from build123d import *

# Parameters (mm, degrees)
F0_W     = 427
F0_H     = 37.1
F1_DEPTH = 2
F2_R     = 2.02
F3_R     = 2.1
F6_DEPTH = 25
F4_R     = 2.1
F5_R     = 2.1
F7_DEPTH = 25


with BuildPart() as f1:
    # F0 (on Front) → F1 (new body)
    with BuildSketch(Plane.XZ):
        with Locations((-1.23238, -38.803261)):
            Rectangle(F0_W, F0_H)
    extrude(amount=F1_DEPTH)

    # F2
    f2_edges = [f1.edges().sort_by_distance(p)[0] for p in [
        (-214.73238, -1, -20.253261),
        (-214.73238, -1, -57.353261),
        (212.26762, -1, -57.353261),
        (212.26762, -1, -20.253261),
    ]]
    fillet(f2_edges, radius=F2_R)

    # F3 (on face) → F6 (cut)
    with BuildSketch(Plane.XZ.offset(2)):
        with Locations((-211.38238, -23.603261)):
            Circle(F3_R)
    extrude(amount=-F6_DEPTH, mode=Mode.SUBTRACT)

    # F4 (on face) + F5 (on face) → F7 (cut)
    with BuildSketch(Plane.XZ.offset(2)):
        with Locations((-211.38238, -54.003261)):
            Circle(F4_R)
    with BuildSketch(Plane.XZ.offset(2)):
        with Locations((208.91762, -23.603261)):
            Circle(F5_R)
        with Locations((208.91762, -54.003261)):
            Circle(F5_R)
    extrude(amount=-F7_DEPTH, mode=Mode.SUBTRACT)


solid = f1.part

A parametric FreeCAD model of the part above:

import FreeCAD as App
import Part
import Sketcher
Q = App.Units.Quantity


def edges_at(feature, points):
    """Names of the edges that pass closest to the given points."""
    edges = feature.Shape.Edges
    near = lambda p: min(range(len(edges)), key=lambda i: edges[i].distToShape(Part.Vertex(*p))[0])
    return sorted({f"Edge{near(p) + 1}" for p in points})

doc = App.newDocument("Part")
body = doc.addObject("PartDesign::Body", "Body")

# Sketch on XZ plane
sketch1 = body.newObject("Sketcher::SketchObject", "Sketch")
sketch1.AttachmentSupport = (doc.getObject("XZ_Plane"), [""])
sketch1.MapMode = "FlatFace"
sketch1.addGeometry([
    Part.LineSegment(App.Vector(-215, -20, 0), App.Vector(-215, -57, 0)),
    Part.LineSegment(App.Vector(-215, -57, 0), App.Vector(212, -57, 0)),
    Part.LineSegment(App.Vector(212, -57, 0), App.Vector(212, -20, 0)),
    Part.LineSegment(App.Vector(212, -20, 0), App.Vector(-215, -20, 0)),
], False)
sketch1.addConstraint([
    Sketcher.Constraint("Coincident", 0, 2, 1, 1),
    Sketcher.Constraint("Coincident", 1, 2, 2, 1),
    Sketcher.Constraint("Coincident", 2, 2, 3, 1),
    Sketcher.Constraint("Coincident", 3, 2, 0, 1),
    Sketcher.Constraint("Vertical", 0),
    Sketcher.Constraint("Horizontal", 1),
    Sketcher.Constraint("Vertical", 2),
    Sketcher.Constraint("Horizontal", 3),
    Sketcher.Constraint("DistanceX", 1, 1, 1, 2, Q("427 mm")),
    Sketcher.Constraint("DistanceY", 0, 2, 0, 1, Q("37.1 mm")),
    Sketcher.Constraint("DistanceX", 0, 2, -1, 1, Q("214.73238 mm")),
    Sketcher.Constraint("DistanceY", 0, 2, -1, 1, Q("57.353261 mm")),
])
pad1 = body.newObject("PartDesign::Pad", "Pad")
pad1.Profile = sketch1
pad1.Length = 2
doc.recompute()

fillet = body.newObject("PartDesign::Fillet", "Fillet")
fillet.Base = (pad1, edges_at(pad1, [
    (-214.732, -1, -20.253),
    (-214.732, -1, -57.353),
    (212.268, -1, -57.353),
    (212.268, -1, -20.253),
]))
fillet.Radius = 2.02

# Sketch on XZ plane
sketch2 = body.newObject("Sketcher::SketchObject", "Sketch001")
sketch2.AttachmentSupport = (doc.getObject("XZ_Plane"), [""])
sketch2.MapMode = "FlatFace"
sketch2.AttachmentOffset = App.Placement(App.Vector(0, 0, 2), App.Rotation())
sketch2.addGeometry(Part.Circle(App.Vector(-211.4, -23.6, 0), App.Vector(0, 0, 1), 2.1), False)
sketch2.addConstraint([
    Sketcher.Constraint("Diameter", 0, Q("4.2 mm")),
    Sketcher.Constraint("DistanceX", 0, 3, -1, 1, Q("211.38238 mm")),
    Sketcher.Constraint("DistanceY", 0, 3, -1, 1, Q("23.603261 mm")),
])
pocket1 = body.newObject("PartDesign::Pocket", "Pocket")
pocket1.Profile = sketch2
pocket1.Length = 25

# Sketch on XZ plane
sketch3 = body.newObject("Sketcher::SketchObject", "Sketch002")
sketch3.AttachmentSupport = (doc.getObject("XZ_Plane"), [""])
sketch3.MapMode = "FlatFace"
sketch3.AttachmentOffset = App.Placement(App.Vector(0, 0, 2), App.Rotation())
sketch3.addGeometry([
    Part.Circle(App.Vector(-211.4, -54, 0), App.Vector(0, 0, 1), 2.1),
    Part.Circle(App.Vector(208.9, -23.6, 0), App.Vector(0, 0, 1), 2.1),
    Part.Circle(App.Vector(208.9, -54, 0), App.Vector(0, 0, 1), 2.1),
], False)
sketch3.addConstraint([
    Sketcher.Constraint("Equal", 0, 1),
    Sketcher.Constraint("Equal", 1, 2),
    Sketcher.Constraint("Horizontal", 0, 3, 2, 3),
    Sketcher.Constraint("Vertical", 1, 3, 2, 3),
    Sketcher.Constraint("Diameter", 0, Q("4.2 mm")),
    Sketcher.Constraint("DistanceX", 0, 3, 1, 3, Q("420.3 mm")),
    Sketcher.Constraint("DistanceY", 0, 3, 1, 3, Q("30.4 mm")),
    Sketcher.Constraint("DistanceX", 0, 3, -1, 1, Q("211.38238 mm")),
    Sketcher.Constraint("DistanceY", 0, 3, -1, 1, Q("54.003261 mm")),
])
pocket2 = body.newObject("PartDesign::Pocket", "Pocket001")
pocket2.Profile = sketch3
pocket2.Length = 25

doc.recompute()
